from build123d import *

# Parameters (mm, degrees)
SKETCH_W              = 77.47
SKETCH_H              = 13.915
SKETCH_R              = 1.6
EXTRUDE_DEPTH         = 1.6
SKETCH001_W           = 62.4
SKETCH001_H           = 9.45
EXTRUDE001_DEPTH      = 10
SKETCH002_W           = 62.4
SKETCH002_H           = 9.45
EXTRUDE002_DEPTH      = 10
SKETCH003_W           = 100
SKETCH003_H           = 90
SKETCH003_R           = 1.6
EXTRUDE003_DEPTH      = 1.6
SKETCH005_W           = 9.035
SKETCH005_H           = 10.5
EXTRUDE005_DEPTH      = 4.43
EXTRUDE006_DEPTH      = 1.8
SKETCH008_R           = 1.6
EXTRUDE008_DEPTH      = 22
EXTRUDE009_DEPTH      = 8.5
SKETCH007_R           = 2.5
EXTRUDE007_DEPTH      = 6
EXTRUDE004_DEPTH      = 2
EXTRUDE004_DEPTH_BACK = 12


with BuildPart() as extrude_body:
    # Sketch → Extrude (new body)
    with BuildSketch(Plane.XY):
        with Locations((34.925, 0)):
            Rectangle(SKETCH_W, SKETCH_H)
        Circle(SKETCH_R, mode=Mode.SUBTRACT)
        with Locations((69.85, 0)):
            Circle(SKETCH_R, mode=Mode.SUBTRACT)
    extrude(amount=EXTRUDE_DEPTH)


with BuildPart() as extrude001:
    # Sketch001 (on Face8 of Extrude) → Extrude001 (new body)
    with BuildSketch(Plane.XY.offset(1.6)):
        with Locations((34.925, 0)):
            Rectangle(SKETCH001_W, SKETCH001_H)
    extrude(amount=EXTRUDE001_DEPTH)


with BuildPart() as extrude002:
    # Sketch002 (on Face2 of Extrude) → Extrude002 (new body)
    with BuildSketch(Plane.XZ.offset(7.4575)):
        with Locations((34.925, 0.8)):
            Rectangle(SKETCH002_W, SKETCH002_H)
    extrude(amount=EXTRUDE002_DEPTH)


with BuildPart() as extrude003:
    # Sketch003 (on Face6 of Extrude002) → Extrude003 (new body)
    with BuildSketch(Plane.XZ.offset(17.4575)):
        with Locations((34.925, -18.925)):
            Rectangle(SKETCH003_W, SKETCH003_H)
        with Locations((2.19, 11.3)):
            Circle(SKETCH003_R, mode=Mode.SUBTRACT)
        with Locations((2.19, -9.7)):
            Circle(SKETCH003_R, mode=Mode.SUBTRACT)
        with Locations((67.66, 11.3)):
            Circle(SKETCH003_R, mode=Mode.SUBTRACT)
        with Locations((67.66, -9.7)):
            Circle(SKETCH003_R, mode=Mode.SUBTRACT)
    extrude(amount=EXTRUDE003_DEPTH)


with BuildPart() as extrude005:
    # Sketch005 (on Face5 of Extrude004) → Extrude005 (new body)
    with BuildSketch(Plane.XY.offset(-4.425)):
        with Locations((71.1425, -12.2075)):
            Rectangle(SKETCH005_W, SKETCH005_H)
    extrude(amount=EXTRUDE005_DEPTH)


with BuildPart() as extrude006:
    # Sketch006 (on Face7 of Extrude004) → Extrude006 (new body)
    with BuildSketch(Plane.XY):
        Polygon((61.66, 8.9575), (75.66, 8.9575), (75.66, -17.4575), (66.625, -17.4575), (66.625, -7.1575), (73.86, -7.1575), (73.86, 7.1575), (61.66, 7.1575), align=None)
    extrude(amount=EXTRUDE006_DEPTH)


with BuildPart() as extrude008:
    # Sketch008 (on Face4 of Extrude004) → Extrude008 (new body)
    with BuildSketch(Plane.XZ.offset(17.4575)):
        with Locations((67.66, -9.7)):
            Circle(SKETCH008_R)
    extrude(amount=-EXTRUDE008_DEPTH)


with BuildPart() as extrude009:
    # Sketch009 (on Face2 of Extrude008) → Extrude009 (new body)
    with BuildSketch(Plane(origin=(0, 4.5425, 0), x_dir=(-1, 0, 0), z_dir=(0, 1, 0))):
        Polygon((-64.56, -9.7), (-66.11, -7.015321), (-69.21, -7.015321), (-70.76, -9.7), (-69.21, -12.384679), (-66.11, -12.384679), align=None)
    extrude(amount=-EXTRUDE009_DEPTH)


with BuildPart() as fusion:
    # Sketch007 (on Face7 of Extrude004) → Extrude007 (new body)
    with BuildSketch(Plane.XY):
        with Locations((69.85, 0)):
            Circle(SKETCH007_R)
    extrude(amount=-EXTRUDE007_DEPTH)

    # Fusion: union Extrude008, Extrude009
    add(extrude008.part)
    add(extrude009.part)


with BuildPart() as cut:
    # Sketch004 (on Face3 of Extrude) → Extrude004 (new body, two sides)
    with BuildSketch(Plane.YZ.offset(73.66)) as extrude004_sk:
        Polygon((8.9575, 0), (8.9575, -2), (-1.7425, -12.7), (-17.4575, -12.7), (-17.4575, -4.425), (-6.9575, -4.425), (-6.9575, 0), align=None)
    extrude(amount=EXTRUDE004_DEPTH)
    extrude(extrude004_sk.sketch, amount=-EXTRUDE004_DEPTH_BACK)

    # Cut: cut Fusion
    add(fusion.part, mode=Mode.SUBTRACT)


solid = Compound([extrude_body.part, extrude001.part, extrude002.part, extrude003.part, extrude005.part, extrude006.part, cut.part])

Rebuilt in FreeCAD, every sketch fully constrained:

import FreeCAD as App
import Part
import Sketcher
Q = App.Units.Quantity

doc = App.newDocument("Part")
params = doc.addObject("Spreadsheet::Sheet", "Params")
for row, (alias, value) in enumerate([
    ("sketch1_diameter", "3.2 mm"),
    ("sketch1_width", "77.47 mm"),
    ("pad1_length", "1.6 mm"),
    ("sketch2_width", "62.4 mm"),
    ("sketch2_height", "9.45 mm"),
    ("pad2_length", "10 mm"),
    ("sketch3_width", "62.4 mm"),
    ("sketch3_height", "9.45 mm"),
    ("pad3_length", "10 mm"),
    ("sketch4_diameter", "3.2 mm"),
    ("sketch4_width", "100 mm"),
    ("sketch4_height", "90 mm"),
    ("pad4_length", "1.6 mm"),
    ("sketch5_height", "10.5 mm"),
    ("pad5_length", "4.43 mm"),
    ("sketch6_width", "14 mm"),
    ("sketch6_width2", "12.2 mm"),
    ("sketch6_height", "1.8 mm"),
    ("sketch6_height2", "10.3 mm"),
    ("pad6_length", "1.8 mm"),
    ("sketch7_diameter", "3.2 mm"),
    ("pad7_length", "22 mm"),
    ("sketch8_width", "3.1 mm"),
    ("sketch8_length", "3.1 mm"),
    ("pad8_length", "8.5 mm"),
    ("sketch9_diameter", "5 mm"),
    ("pad9_length", "6 mm"),
    ("sketch10_height", "2 mm"),
    ("sketch10_width", "10.5 mm"),
    ("pad10_length", "2 mm"),
    ("pad10_length2", "12 mm"),
], start=1):
    params.set(f"A{row}", alias)
    params.set(f"B{row}", "=" + value)
    params.setAlias(f"B{row}", alias)

body = doc.addObject("PartDesign::Body", "Body")

# Sketch on XY plane
sketch1 = body.newObject("Sketcher::SketchObject", "Sketch")
sketch1.AttachmentSupport = (doc.getObject("XY_Plane"), [""])
sketch1.MapMode = "FlatFace"
sketch1.addGeometry(Part.LineSegment(App.Vector(-3.8, 7, 0), App.Vector(-3.8, -7, 0)), False)
sketch1.addGeometry(Part.LineSegment(App.Vector(-3.8, -7, 0), App.Vector(73.7, -7, 0)), False)
sketch1.addGeometry(Part.LineSegment(App.Vector(73.7, -7, 0), App.Vector(73.7, 7, 0)), False)
sketch1.addGeometry(Part.LineSegment(App.Vector(73.7, 7, 0), App.Vector(-3.8, 7, 0)), False)
sketch1.addGeometry(Part.Circle(App.Vector(0, 0, 0), App.Vector(0, 0, 1), 1.6), False)
sketch1.addGeometry(Part.Circle(App.Vector(69.8, 0, 0), App.Vector(0, 0, 1), 1.6), False)
sketch1.addConstraint(Sketcher.Constraint("Coincident", 0, 2, 1, 1))
sketch1.addConstraint(Sketcher.Constraint("Coincident", 1, 2, 2, 1))
sketch1.addConstraint(Sketcher.Constraint("Coincident", 2, 2, 3, 1))
sketch1.addConstraint(Sketcher.Constraint("Coincident", 3, 2, 0, 1))
sketch1.addConstraint(Sketcher.Constraint("Vertical", 0))
sketch1.addConstraint(Sketcher.Constraint("Horizontal", 1))
sketch1.addConstraint(Sketcher.Constraint("Vertical", 2))
sketch1.addConstraint(Sketcher.Constraint("Horizontal", 3))
sketch1.addConstraint(Sketcher.Constraint("Coincident", 4, 3, -1, 1))
sketch1.addConstraint(Sketcher.Constraint("Equal", 4, 5))
sketch1.addConstraint(Sketcher.Constraint("PointOnObject", 5, 3, -1))
sketch1.addConstraint(Sketcher.Constraint("Diameter", 4, Q("3.2 mm")))
sketch1.addConstraint(Sketcher.Constraint("DistanceX", 1, 1, 1, 2, Q("77.47 mm")))
sketch1.addConstraint(Sketcher.Constraint("DistanceY", 0, 2, 0, 1, Q("13.915 mm")))
sketch1.addConstraint(Sketcher.Constraint("DistanceX", -1, 1, 5, 3, Q("69.85 mm")))
sketch1.addConstraint(Sketcher.Constraint("DistanceX", 0, 2, -1, 1, Q("3.81 mm")))
sketch1.addConstraint(Sketcher.Constraint("DistanceY", 0, 2, -1, 1, Q("6.9575 mm")))
sketch1.setExpression("Constraints[11]", "Params.sketch1_diameter")
sketch1.setExpression("Constraints[12]", "Params.sketch1_width")
pad1 = body.newObject("PartDesign::Pad", "Pad")
pad1.Profile = sketch1
pad1.setExpression("Length", "Params.pad1_length")
body2 = doc.addObject("PartDesign::Body", "Body001")

# Sketch on XY plane
sketch2 = body2.newObject("Sketcher::SketchObject", "Sketch001")
sketch2.AttachmentSupport = (doc.getObject("XY_Plane001"), [""])
sketch2.MapMode = "FlatFace"
sketch2.AttachmentOffset = App.Placement(App.Vector(0, 0, 1.6), App.Rotation())
sketch2.addGeometry(Part.LineSegment(App.Vector(4, 5, 0), App.Vector(4, -5, 0)), False)
sketch2.addGeometry(Part.LineSegment(App.Vector(4, -5, 0), App.Vector(66, -5, 0)), False)
sketch2.addGeometry(Part.LineSegment(App.Vector(66, -5, 0), App.Vector(66, 5, 0)), False)
sketch2.addGeometry(Part.LineSegment(App.Vector(66, 5, 0), App.Vector(4, 5, 0)), False)
sketch2.addConstraint(Sketcher.Constraint("Coincident", 0, 2, 1, 1))
sketch2.addConstraint(Sketcher.Constraint("Coincident", 1, 2, 2, 1))
sketch2.addConstraint(Sketcher.Constraint("Coincident", 2, 2, 3, 1))
sketch2.addConstraint(Sketcher.Constraint("Coincident", 3, 2, 0, 1))
sketch2.addConstraint(Sketcher.Constraint("Vertical", 0))
sketch2.addConstraint(Sketcher.Constraint("Horizontal", 1))
sketch2.addConstraint(Sketcher.Constraint("Vertical", 2))
sketch2.addConstraint(Sketcher.Constraint("Horizontal", 3))
sketch2.addConstraint(Sketcher.Constraint("DistanceX", 1, 1, 1, 2, Q("62.4 mm")))
sketch2.addConstraint(Sketcher.Constraint("DistanceY", 0, 2, 0, 1, Q("9.45 mm")))
sketch2.addConstraint(Sketcher.Constraint("DistanceX", -1, 1, 0, 2, Q("3.725 mm")))
sketch2.addConstraint(Sketcher.Constraint("DistanceY", 0, 2, -1, 1, Q("4.725 mm")))
sketch2.setExpression("Constraints[8]", "Params.sketch2_width")
sketch2.setExpression("Constraints[9]", "Params.sketch2_height")
pad2 = body2.newObject("PartDesign::Pad", "Pad001")
pad2.Profile = sketch2
pad2.setExpression("Length", "Params.pad2_length")
body3 = doc.addObject("PartDesign::Body", "Body002")

# Sketch on XZ plane
sketch3 = body3.newObject("Sketcher::SketchObject", "Sketch002")
sketch3.AttachmentSupport = (doc.getObject("XZ_Plane002"), [""])
sketch3.MapMode = "FlatFace"
sketch3.AttachmentOffset = App.Placement(App.Vector(0, 0, 7.4575), App.Rotation())
sketch3.addGeometry(Part.LineSegment(App.Vector(4, 6, 0), App.Vector(4, -4, 0)), False)
sketch3.addGeometry(Part.LineSegment(App.Vector(4, -4, 0), App.Vector(66, -4, 0)), False)
sketch3.addGeometry(Part.LineSegment(App.Vector(66, -4, 0), App.Vector(66, 6, 0)), False)
sketch3.addGeometry(Part.LineSegment(App.Vector(66, 6, 0), App.Vector(4, 6, 0)), False)
sketch3.addConstraint(Sketcher.Constraint("Coincident", 0, 2, 1, 1))
sketch3.addConstraint(Sketcher.Constraint("Coincident", 1, 2, 2, 1))
sketch3.addConstraint(Sketcher.Constraint("Coincident", 2, 2, 3, 1))
sketch3.addConstraint(Sketcher.Constraint("Coincident", 3, 2, 0, 1))
sketch3.addConstraint(Sketcher.Constraint("Vertical", 0))
sketch3.addConstraint(Sketcher.Constraint("Horizontal", 1))
sketch3.addConstraint(Sketcher.Constraint("Vertical", 2))
sketch3.addConstraint(Sketcher.Constraint("Horizontal", 3))
sketch3.addConstraint(Sketcher.Constraint("DistanceX", 1, 1, 1, 2, Q("62.4 mm")))
sketch3.addConstraint(Sketcher.Constraint("DistanceY", 0, 2, 0, 1, Q("9.45 mm")))
sketch3.addConstraint(Sketcher.Constraint("DistanceX", -1, 1, 0, 2, Q("3.725 mm")))
sketch3.addConstraint(Sketcher.Constraint("DistanceY", 0, 2, -1, 1, Q("3.925 mm")))
sketch3.setExpression("Constraints[8]", "Params.sketch3_width")
sketch3.setExpression("Constraints[9]", "Params.sketch3_height")
pad3 = body3.newObject("PartDesign::Pad", "Pad002")
pad3.Profile = sketch3
pad3.setExpression("Length", "Params.pad3_length")
body4 = doc.addObject("PartDesign::Body", "Body003")

# Sketch on XZ plane
sketch4 = body4.newObject("Sketcher::SketchObject", "Sketch003")
sketch4.AttachmentSupport = (doc.getObject("XZ_Plane003"), [""])
sketch4.MapMode = "FlatFace"
sketch4.AttachmentOffset = App.Placement(App.Vector(0, 0, 17.4575), App.Rotation())
sketch4.addGeometry(Part.LineSegment(App.Vector(-15.1, 26.1, 0), App.Vector(-15.1, -63.9, 0)), False)
sketch4.addGeometry(Part.LineSegment(App.Vector(-15.1, -63.9, 0), App.Vector(84.9, -63.9, 0)), False)
sketch4.addGeometry(Part.LineSegment(App.Vector(84.9, -63.9, 0), App.Vector(84.9, 26.1, 0)), False)
sketch4.addGeometry(Part.LineSegment(App.Vector(84.9, 26.1, 0), App.Vector(-15.1, 26.1, 0)), False)
sketch4.addGeometry(Part.Circle(App.Vector(2.2, -9.7, 0), App.Vector(0, 0, 1), 1.6), False)
sketch4.addGeometry(Part.Circle(App.Vector(67.7, -9.7, 0), App.Vector(0, 0, 1), 1.6), False)
sketch4.addGeometry(Part.Circle(App.Vector(2.2, 11.3, 0), App.Vector(0, 0, 1), 1.6), False)
sketch4.addGeometry(Part.Circle(App.Vector(67.7, 11.3, 0), App.Vector(0, 0, 1), 1.6), False)
sketch4.addConstraint(Sketcher.Constraint("Coincident", 0, 2, 1, 1))
sketch4.addConstraint(Sketcher.Constraint("Coincident", 1, 2, 2, 1))
sketch4.addConstraint(Sketcher.Constraint("Coincident", 2, 2, 3, 1))
sketch4.addConstraint(Sketcher.Constraint("Coincident", 3, 2, 0, 1))
sketch4.addConstraint(Sketcher.Constraint("Vertical", 0))
sketch4.addConstraint(Sketcher.Constraint("Horizontal", 1))
sketch4.addConstraint(Sketcher.Constraint("Vertical", 2))
sketch4.addConstraint(Sketcher.Constraint("Horizontal", 3))
sketch4.addConstraint(Sketcher.Constraint("Equal", 4, 5))
sketch4.addConstraint(Sketcher.Constraint("Equal", 5, 6))
sketch4.addConstraint(Sketcher.Constraint("Equal", 6, 7))
sketch4.addConstraint(Sketcher.Constraint("Horizontal", 4, 3, 5, 3))
sketch4.addConstraint(Sketcher.Constraint("Horizontal", 6, 3, 7, 3))
sketch4.addConstraint(Sketcher.Constraint("Vertical", 4, 3, 6, 3))
sketch4.addConstraint(Sketcher.Constraint("Vertical", 5, 3, 7, 3))
sketch4.addConstraint(Sketcher.Constraint("Diameter", 4, Q("3.2 mm")))
sketch4.addConstraint(Sketcher.Constraint("DistanceX", 1, 1, 1, 2, Q("100 mm")))
sketch4.addConstraint(Sketcher.Constraint("DistanceY", 0, 2, 0, 1, Q("90 mm")))
sketch4.addConstraint(Sketcher.Constraint("DistanceY", 4, 3, 6, 3, Q("21 mm")))
sketch4.addConstraint(Sketcher.Constraint("DistanceY", 4, 3, -1, 1, Q("9.7 mm")))
sketch4.addConstraint(Sketcher.Constraint("DistanceX", -1, 1, 4, 3, Q("2.19 mm")))
sketch4.addConstraint(Sketcher.Constraint("DistanceX", -1, 1, 5, 3, Q("67.66 mm")))
sketch4.addConstraint(Sketcher.Constraint("DistanceX", 0, 2, -1, 1, Q("15.075 mm")))
sketch4.addConstraint(Sketcher.Constraint("DistanceY", 0, 2, -1, 1, Q("63.925 mm")))
sketch4.setExpression("Constraints[15]", "Params.sketch4_diameter")
sketch4.setExpression("Constraints[16]", "Params.sketch4_width")
sketch4.setExpression("Constraints[17]", "Params.sketch4_height")
pad4 = body4.newObject("PartDesign::Pad", "Pad003")
pad4.Profile = sketch4
pad4.setExpression("Length", "Params.pad4_length")
body5 = doc.addObject("PartDesign::Body", "Body004")

# Sketch on XY plane
sketch5 = body5.newObject("Sketcher::SketchObject", "Sketch004")
sketch5.AttachmentSupport = (doc.getObject("XY_Plane004"), [""])
sketch5.MapMode = "FlatFace"
sketch5.AttachmentOffset = App.Placement(App.Vector(0, 0, -4.425), App.Rotation())
sketch5.addGeometry(Part.LineSegment(App.Vector(67, -7, 0), App.Vector(67, -17, 0)), False)
sketch5.addGeometry(Part.LineSegment(App.Vector(67, -17, 0), App.Vector(76, -17, 0)), False)
sketch5.addGeometry(Part.LineSegment(App.Vector(76, -17, 0), App.Vector(76, -7, 0)), False)
sketch5.addGeometry(Part.LineSegment(App.Vector(76, -7, 0), App.Vector(67, -7, 0)), False)
sketch5.addConstraint(Sketcher.Constraint("Coincident", 0, 2, 1, 1))
sketch5.addConstraint(Sketcher.Constraint("Coincident", 1, 2, 2, 1))
sketch5.addConstraint(Sketcher.Constraint("Coincident", 2, 2, 3, 1))
sketch5.addConstraint(Sketcher.Constraint("Coincident", 3, 2, 0, 1))
sketch5.addConstraint(Sketcher.Constraint("Vertical", 0))
sketch5.addConstraint(Sketcher.Constraint("Horizontal", 1))
sketch5.addConstraint(Sketcher.Constraint("Vertical", 2))
sketch5.addConstraint(Sketcher.Constraint("Horizontal", 3))
sketch5.addConstraint(Sketcher.Constraint("DistanceY", 0, 2, 0, 1, Q("10.5 mm")))
sketch5.addConstraint(Sketcher.Constraint("DistanceX", 1, 1, 1, 2, Q("9.035 mm")))
sketch5.addConstraint(Sketcher.Constraint("DistanceX", -1, 1, 1, 2, Q("75.66 mm")))
sketch5.addConstraint(Sketcher.Constraint("DistanceY", 0, 2, -1, 1, Q("17.4575 mm")))
sketch5.setExpression("Constraints[8]", "Params.sketch5_height")
pad5 = body5.newObject("PartDesign::Pad", "Pad004")
pad5.Profile = sketch5
pad5.setExpression("Length", "Params.pad5_length")
body6 = doc.addObject("PartDesign::Body", "Body005")

# Sketch on XY plane
sketch6 = body6.newObject("Sketcher::SketchObject", "Sketch005")
sketch6.AttachmentSupport = (doc.getObject("XY_Plane005"), [""])
sketch6.MapMode = "FlatFace"
sketch6.addGeometry(Part.LineSegment(App.Vector(75.7, 9, 0), App.Vector(61.7, 9, 0)), False)
sketch6.addGeometry(Part.LineSegment(App.Vector(61.7, 9, 0), App.Vector(61.7, 7.2, 0)), False)
sketch6.addGeometry(Part.LineSegment(App.Vector(61.7, 7.2, 0), App.Vector(73.9, 7.2, 0)), False)
sketch6.addGeometry(Part.LineSegment(App.Vector(73.9, 7.2, 0), App.Vector(73.9, -7.2, 0)), False)
sketch6.addGeometry(Part.LineSegment(App.Vector(73.9, -7.2, 0), App.Vector(66.6, -7.2, 0)), False)
sketch6.addGeometry(Part.LineSegment(App.Vector(66.6, -7.2, 0), App.Vector(66.6, -17.5, 0)), False)
sketch6.addGeometry(Part.LineSegment(App.Vector(66.6, -17.5, 0), App.Vector(75.7, -17.5, 0)), False)
sketch6.addGeometry(Part.LineSegment(App.Vector(75.7, -17.5, 0), App.Vector(75.7, 9, 0)), False)
sketch6.addConstraint(Sketcher.Constraint("Coincident", 0, 2, 1, 1))
sketch6.addConstraint(Sketcher.Constraint("Coincident", 1, 2, 2, 1))
sketch6.addConstraint(Sketcher.Constraint("Coincident", 2, 2, 3, 1))
sketch6.addConstraint(Sketcher.Constraint("Coincident", 3, 2, 4, 1))
sketch6.addConstraint(Sketcher.Constraint("Coincident", 4, 2, 5, 1))
sketch6.addConstraint(Sketcher.Constraint("Coincident", 5, 2, 6, 1))
sketch6.addConstraint(Sketcher.Constraint("Coincident", 6, 2, 7, 1))
sketch6.addConstraint(Sketcher.Constraint("Coincident", 7, 2, 0, 1))
sketch6.addConstraint(Sketcher.Constraint("Horizontal", 0))
sketch6.addConstraint(Sketcher.Constraint("Vertical", 1))
sketch6.addConstraint(Sketcher.Constraint("Horizontal", 2))
sketch6.addConstraint(Sketcher.Constraint("Vertical", 3))
sketch6.addConstraint(Sketcher.Constraint("Horizontal", 4))
sketch6.addConstraint(Sketcher.Constraint("Vertical", 5))
sketch6.addConstraint(Sketcher.Constraint("Horizontal", 6))
sketch6.addConstraint(Sketcher.Constraint("Vertical", 7))
sketch6.addConstraint(Sketcher.Constraint("DistanceX", 0, 2, 0, 1, Q("14 mm")))
sketch6.addConstraint(Sketcher.Constraint("DistanceX", 2, 1, 2, 2, Q("12.2 mm")))
sketch6.addConstraint(Sketcher.Constraint("DistanceY", 1, 2, 1, 1, Q("1.8 mm")))
sketch6.addConstraint(Sketcher.Constraint("DistanceY", 5, 2, 5, 1, Q("10.3 mm")))
sketch6.addConstraint(Sketcher.Constraint("DistanceX", 4, 2, 4, 1, Q("7.235 mm")))
sketch6.addConstraint(Sketcher.Constraint("DistanceY", 3, 2, 3, 1, Q("14.315 mm")))
sketch6.addConstraint(Sketcher.Constraint("DistanceX", -1, 1, 0, 2, Q("61.66 mm")))
sketch6.addConstraint(Sketcher.Constraint("DistanceY", -1, 1, 0, 2, Q("8.9575 mm")))
sketch6.setExpression("Constraints[16]", "Params.sketch6_width")
sketch6.setExpression("Constraints[17]", "Params.sketch6_width2")
sketch6.setExpression("Constraints[18]", "Params.sketch6_height")
sketch6.setExpression("Constraints[19]", "Params.sketch6_height2")
pad6 = body6.newObject("PartDesign::Pad", "Pad005")
pad6.Profile = sketch6
pad6.setExpression("Length", "Params.pad6_length")
body7 = doc.addObject("PartDesign::Body", "Body006")

# Sketch on XZ plane
sketch7 = body7.newObject("Sketcher::SketchObject", "Sketch006")
sketch7.AttachmentSupport = (doc.getObject("XZ_Plane006"), [""])
sketch7.MapMode = "FlatFace"
sketch7.AttachmentOffset = App.Placement(App.Vector(0, 0, 17.4575), App.Rotation())
sketch7.addGeometry(Part.Circle(App.Vector(67.7, -9.7, 0), App.Vector(0, 0, 1), 1.6), False)
sketch7.addConstraint(Sketcher.Constraint("Diameter", 0, Q("3.2 mm")))
sketch7.addConstraint(Sketcher.Constraint("DistanceY", 0, 3, -1, 1, Q("9.7 mm")))
sketch7.addConstraint(Sketcher.Constraint("DistanceX", -1, 1, 0, 3, Q("67.66 mm")))
sketch7.setExpression("Constraints[0]", "Params.sketch7_diameter")
pad7 = body7.newObject("PartDesign::Pad", "Pad006")
pad7.Profile = sketch7
pad7.setExpression("Length", "Params.pad7_length")
pad7.Reversed = True
body8 = doc.addObject("PartDesign::Body", "Body007")

# Sketch on XZ plane
sketch8 = body8.newObject("Sketcher::SketchObject", "Sketch007")
sketch8.AttachmentSupport = (doc.getObject("XZ_Plane007"), [""])
sketch8.MapMode = "FlatFace"
sketch8.AttachmentOffset = App.Placement(App.Vector(0, 0, -4.5425), App.Rotation())
sketch8.addGeometry(Part.LineSegment(App.Vector(64.6, -9.7, 0), App.Vector(66.1, -7, 0)), False)
sketch8.addGeometry(Part.LineSegment(App.Vector(66.1, -7, 0), App.Vector(69.2, -7, 0)), False)
sketch8.addGeometry(Part.LineSegment(App.Vector(69.2, -7, 0), App.Vector(70.8, -9.7, 0)), False)
sketch8.addGeometry(Part.LineSegment(App.Vector(70.8, -9.7, 0), App.Vector(69.2, -12.4, 0)), False)
sketch8.addGeometry(Part.LineSegment(App.Vector(69.2, -12.4, 0), App.Vector(66.1, -12.4, 0)), False)
sketch8.addGeometry(Part.LineSegment(App.Vector(66.1, -12.4, 0), App.Vector(64.6, -9.7, 0)), False)
sketch8.addConstraint(Sketcher.Constraint("Coincident", 0, 2, 1, 1))
sketch8.addConstraint(Sketcher.Constraint("Coincident", 1, 2, 2, 1))
sketch8.addConstraint(Sketcher.Constraint("Coincident", 2, 2, 3, 1))
sketch8.addConstraint(Sketcher.Constraint("Coincident", 3, 2, 4, 1))
sketch8.addConstraint(Sketcher.Constraint("Coincident", 4, 2, 5, 1))
sketch8.addConstraint(Sketcher.Constraint("Coincident", 5, 2, 0, 1))
sketch8.addConstraint(Sketcher.Constraint("Horizontal", 1))
sketch8.addConstraint(Sketcher.Constraint("Horizontal", 4))
sketch8.addConstraint(Sketcher.Constraint("Parallel", 0, 3))
sketch8.addConstraint(Sketcher.Constraint("Parallel", 2, 5))
sketch8.addConstraint(Sketcher.Constraint("Horizontal", 2, 2, 5, 2))
sketch8.addConstraint(Sketcher.Constraint("Vertical", 1, 2, 3, 2))
sketch8.addConstraint(Sketcher.Constraint("Vertical", 0, 2, 4, 2))
sketch8.addConstraint(Sketcher.Constraint("Angle", 0, Q("60.000002 deg")))
sketch8.addConstraint(Sketcher.Constraint("DistanceX", 1, 1, 1, 2, Q("3.1 mm")))
sketch8.addConstraint(Sketcher.Constraint("Distance", 0, Q("3.1 mm")))
sketch8.addConstraint(Sketcher.Constraint("DistanceY", 2, 2, -1, 1, Q("9.7 mm")))
sketch8.addConstraint(Sketcher.Constraint("DistanceX", -1, 1, 0, 2, Q("66.11 mm")))
sketch8.setExpression("Constraints[14]", "Params.sketch8_width")
sketch8.setExpression("Constraints[15]", "Params.sketch8_length")
pad8 = body8.newObject("PartDesign::Pad", "Pad007")
pad8.Profile = sketch8
pad8.setExpression("Length", "Params.pad8_length")
body9 = doc.addObject("PartDesign::Body", "Body008")
body9.AllowCompound = True

# Sketch on XY plane
sketch9 = body9.newObject("Sketcher::SketchObject", "Sketch008")
sketch9.AttachmentSupport = (doc.getObject("XY_Plane008"), [""])
sketch9.MapMode = "FlatFace"
sketch9.addGeometry(Part.Circle(App.Vector(69.8, 0, 0), App.Vector(0, 0, 1), 2.5), False)
sketch9.addConstraint(Sketcher.Constraint("PointOnObject", 0, 3, -1))
sketch9.addConstraint(Sketcher.Constraint("Diameter", 0, Q("5 mm")))
sketch9.addConstraint(Sketcher.Constraint("DistanceX", -1, 1, 0, 3, Q("69.85 mm")))
sketch9.setExpression("Constraints[1]", "Params.sketch9_diameter")
pad9 = body9.newObject("PartDesign::Pad", "Pad008")
pad9.Profile = sketch9
pad9.setExpression("Length", "Params.pad9_length")
pad9.Reversed = True
doc.recompute()

boolean = body9.newObject("PartDesign::Boolean", "Boolean")
boolean.Type = "Fuse"
boolean.addObjects([body7])
doc.recompute()

boolean2 = body9.newObject("PartDesign::Boolean", "Boolean001")
boolean2.Type = "Fuse"
boolean2.addObjects([body8])
body10 = doc.addObject("PartDesign::Body", "Body009")

# Sketch on YZ plane
sketch10 = body10.newObject("Sketcher::SketchObject", "Sketch009")
sketch10.AttachmentSupport = (doc.getObject("YZ_Plane009"), [""])
sketch10.MapMode = "FlatFace"
sketch10.AttachmentOffset = App.Placement(App.Vector(0, 0, 73.66), App.Rotation())
sketch10.addGeometry(Part.LineSegment(App.Vector(9, -2, 0), App.Vector(9, 0, 0)), False)
sketch10.addGeometry(Part.LineSegment(App.Vector(9, 0, 0), App.Vector(-7, 0, 0)), False)
sketch10.addGeometry(Part.LineSegment(App.Vector(-7, 0, 0), App.Vector(-7, -4.4, 0)), False)
sketch10.addGeometry(Part.LineSegment(App.Vector(-7, -4.4, 0), App.Vector(-17.5, -4.4, 0)), False)
sketch10.addGeometry(Part.LineSegment(App.Vector(-17.5, -4.4, 0), App.Vector(-17.5, -12.7, 0)), False)
sketch10.addGeometry(Part.LineSegment(App.Vector(-17.5, -12.7, 0), App.Vector(-1.7, -12.7, 0)), False)
sketch10.addGeometry(Part.LineSegment(App.Vector(-1.7, -12.7, 0), App.Vector(9, -2, 0)), False)
sketch10.addConstraint(Sketcher.Constraint("Coincident", 0, 2, 1, 1))
sketch10.addConstraint(Sketcher.Constraint("Coincident", 1, 2, 2, 1))
sketch10.addConstraint(Sketcher.Constraint("Coincident", 2, 2, 3, 1))
sketch10.addConstraint(Sketcher.Constraint("Coincident", 3, 2, 4, 1))
sketch10.addConstraint(Sketcher.Constraint("Coincident", 4, 2, 5, 1))
sketch10.addConstraint(Sketcher.Constraint("Coincident", 5, 2, 6, 1))
sketch10.addConstraint(Sketcher.Constraint("Coincident", 6, 2, 0, 1))
sketch10.addConstraint(Sketcher.Constraint("Vertical", 0))
sketch10.addConstraint(Sketcher.Constraint("Horizontal", 1))
sketch10.addConstraint(Sketcher.Constraint("Vertical", 2))
sketch10.addConstraint(Sketcher.Constraint("Horizontal", 3))
sketch10.addConstraint(Sketcher.Constraint("Vertical", 4))
sketch10.addConstraint(Sketcher.Constraint("Horizontal", 5))
sketch10.addConstraint(Sketcher.Constraint("PointOnObject", 0, 2, -1))
sketch10.addConstraint(Sketcher.Constraint("DistanceY", 0, 1, 0, 2, Q("2 mm")))
sketch10.addConstraint(Sketcher.Constraint("Angle", 6, Q("45 deg")))
sketch10.addConstraint(Sketcher.Constraint("DistanceX", 3, 2, 3, 1, Q("10.5 mm")))
sketch10.addConstraint(Sketcher.Constraint("DistanceY", 4, 2, -1, 1, Q("12.7 mm")))
sketch10.addConstraint(Sketcher.Constraint("DistanceX", 1, 2, 1, 1, Q("15.915 mm")))
sketch10.addConstraint(Sketcher.Constraint("DistanceY", 2, 2, 2, 1, Q("4.425 mm")))
sketch10.addConstraint(Sketcher.Constraint("DistanceX", -1, 1, 0, 2, Q("8.9575 mm")))
sketch10.setExpression("Constraints[14]", "Params.sketch10_height")
sketch10.setExpression("Constraints[16]", "Params.sketch10_width")
pad10 = body10.newObject("PartDesign::Pad", "Pad009")
pad10.Profile = sketch10
pad10.Type = "TwoLengths"
pad10.setExpression("Length", "Params.pad10_length")
pad10.setExpression("Length2", "Params.pad10_length2")
doc.recompute()

boolean3 = body10.newObject("PartDesign::Boolean", "Boolean002")
boolean3.Type = "Cut"
boolean3.addObjects([body9])

doc.recompute()
